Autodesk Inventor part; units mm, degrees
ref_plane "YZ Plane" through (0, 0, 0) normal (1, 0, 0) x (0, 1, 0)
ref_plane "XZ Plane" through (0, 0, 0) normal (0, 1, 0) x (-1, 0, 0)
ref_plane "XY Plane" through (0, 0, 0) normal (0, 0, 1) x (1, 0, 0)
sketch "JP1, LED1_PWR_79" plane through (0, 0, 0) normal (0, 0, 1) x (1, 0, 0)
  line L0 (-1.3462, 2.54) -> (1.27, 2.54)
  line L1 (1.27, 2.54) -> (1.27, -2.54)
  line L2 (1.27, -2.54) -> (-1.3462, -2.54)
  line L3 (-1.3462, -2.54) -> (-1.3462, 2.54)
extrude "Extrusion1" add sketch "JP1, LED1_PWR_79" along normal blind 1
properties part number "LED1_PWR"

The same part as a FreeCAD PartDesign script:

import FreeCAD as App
import Part
import Sketcher
from FreeCAD import Vector
Q = App.Units.Quantity


def add_polygon(sketch, points):
    """Adds a closed chain of lines whose ends are joined by coincident constraints."""
    first, n = sketch.GeometryCount, len(points)
    for a, b in zip(points, points[1:] + points[:1]):
        sketch.addGeometry(Part.LineSegment(App.Vector(*a, 0), App.Vector(*b, 0)), False)
    for i in range(n):
        sketch.addConstraint(Sketcher.Constraint("Coincident", first + i, 2, first + (i + 1) % n, 1))

doc = App.newDocument("Part")
params = doc.addObject("Spreadsheet::Sheet", "Params")
for row, (alias, value) in enumerate([
    ("sketch1_height", "0.2 in"),
    ("sketch1_width", "0.103 in"),
    ("pad1_length", "1 mm"),
], start=1):
    params.set(f"A{row}", alias)
    params.set(f"B{row}", "=" + value)
    params.setAlias(f"B{row}", alias)

body = doc.addObject("PartDesign::Body", "Body")

# Sketch on XY plane
sketch1 = doc.addObject("Sketcher::SketchObject", "Sketch")
body.addObject(sketch1)
sketch1.AttachmentSupport = (doc.XY_Plane, [""])
sketch1.MapMode = "FlatFace"
add_polygon(sketch1, [(1.27, 2.54), (-1.3462, 2.54), (-1.3462, -2.54), (1.27, -2.54)])  # lines 0-3
sketch1.addConstraint([
    Sketcher.Constraint("Horizontal", 0),
    Sketcher.Constraint("Vertical", 1),
    Sketcher.Constraint("Horizontal", 2),
    Sketcher.Constraint("Vertical", 3),
    Sketcher.Constraint("DistanceY", 1, 2, 1, 1, Q("0.2 in")),
    Sketcher.Constraint("DistanceY", -1, 1, 0, 2, Q("0.1 in")),
    Sketcher.Constraint("DistanceX", 0, 2, 0, 1, Q("0.103 in")),
    Sketcher.Constraint("DistanceX", -1, 1, 2, 2, Q("0.05 in")),
])
sketch1.setExpression("Constraints[8]", "Params.sketch1_height")
sketch1.setExpression("Constraints[10]", "Params.sketch1_width")
pad1 = doc.addObject("PartDesign::Pad", "Pad")
body.addObject(pad1)
pad1.Profile = sketch1
pad1.setExpression("Length", "Params.pad1_length")

doc.recompute()
